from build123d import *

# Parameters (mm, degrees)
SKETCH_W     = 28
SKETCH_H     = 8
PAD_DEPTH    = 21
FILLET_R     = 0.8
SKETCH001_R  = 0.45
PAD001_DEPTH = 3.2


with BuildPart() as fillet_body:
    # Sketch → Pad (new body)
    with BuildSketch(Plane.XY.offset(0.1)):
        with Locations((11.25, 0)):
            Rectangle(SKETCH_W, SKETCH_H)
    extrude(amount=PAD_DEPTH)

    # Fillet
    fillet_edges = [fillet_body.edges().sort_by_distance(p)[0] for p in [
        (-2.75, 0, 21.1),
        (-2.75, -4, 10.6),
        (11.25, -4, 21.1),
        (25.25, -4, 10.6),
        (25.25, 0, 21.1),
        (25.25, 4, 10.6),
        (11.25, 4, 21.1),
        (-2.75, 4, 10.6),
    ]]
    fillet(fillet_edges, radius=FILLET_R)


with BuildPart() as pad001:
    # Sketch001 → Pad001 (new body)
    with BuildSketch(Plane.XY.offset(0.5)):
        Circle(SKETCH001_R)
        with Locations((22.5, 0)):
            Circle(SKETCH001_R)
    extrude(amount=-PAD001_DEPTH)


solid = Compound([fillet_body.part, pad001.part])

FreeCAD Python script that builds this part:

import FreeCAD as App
import Part
import Sketcher


def edges_at(feature, points):
    """Names of the edges that pass closest to the given points."""
    edges = feature.Shape.Edges
    near = lambda p: min(range(len(edges)), key=lambda i: edges[i].distToShape(Part.Vertex(*p))[0])
    return sorted({f"Edge{near(p) + 1}" for p in points})


def add_polygon(sketch, points):
    """Adds a closed chain of lines whose ends are joined by coincident constraints."""
    first, n = sketch.GeometryCount, len(points)
    for a, b in zip(points, points[1:] + points[:1]):
        sketch.addGeometry(Part.LineSegment(App.Vector(*a, 0), App.Vector(*b, 0)), False)
    for i in range(n):
        sketch.addConstraint(Sketcher.Constraint("Coincident", first + i, 2, first + (i + 1) % n, 1))

doc = App.newDocument("Part")
body = doc.addObject("PartDesign::Body", "Body")

# Sketch on XY plane
sketch1 = doc.addObject("Sketcher::SketchObject", "Sketch")
body.addObject(sketch1)
sketch1.AttachmentSupport = (doc.XY_Plane, [""])
sketch1.MapMode = "FlatFace"
sketch1.AttachmentOffset = App.Placement(App.Vector(0, 0, 0.1), App.Rotation())
add_polygon(sketch1, [(-2.75, 4), (-2.75, -4), (25.25, -4), (25.25, 4)])  # lines 0-3
sketch1.addConstraint(Sketcher.Constraint("Vertical", 0))
sketch1.addConstraint(Sketcher.Constraint("Horizontal", 1))
sketch1.addConstraint(Sketcher.Constraint("Vertical", 2))
sketch1.addConstraint(Sketcher.Constraint("Horizontal", 3))
sketch1.addConstraint(Sketcher.Constraint("DistanceX", 1, 1, 1, 2, 28.0))
sketch1.addConstraint(Sketcher.Constraint("DistanceY", 0, 2, 0, 1, 8.0))
sketch1.addConstraint(Sketcher.Constraint("DistanceY", 0, 2, -1, 1, 4.0))
sketch1.addConstraint(Sketcher.Constraint("DistanceX", 0, 2, -1, 1, 2.75))
pad1 = doc.addObject("PartDesign::Pad", "Pad")
body.addObject(pad1)
pad1.Profile = sketch1
pad1.Length = 21
doc.recompute()

fillet = doc.addObject("PartDesign::Fillet", "Fillet")
body.addObject(fillet)
fillet.Base = (pad1, edges_at(pad1, [
    (-2.75, 0, 21.1),
    (-2.75, -4, 10.6),
    (11.25, -4, 21.1),
    (25.25, -4, 10.6),
    (25.25, 0, 21.1),
    (25.25, 4, 10.6),
    (11.25, 4, 21.1),
    (-2.75, 4, 10.6),
]))
fillet.Radius = 0.8
body2 = doc.addObject("PartDesign::Body", "Body001")
body2.AllowCompound = True

# Sketch on XY plane
sketch2 = doc.addObject("Sketcher::SketchObject", "Sketch001")
body2.addObject(sketch2)
sketch2.AttachmentSupport = (doc.getObject("XY_Plane001"), [""])
sketch2.MapMode = "FlatFace"
sketch2.AttachmentOffset = App.Placement(App.Vector(0, 0, 0.5), App.Rotation())
sketch2.addGeometry(Part.Circle(App.Vector(0, 0, 0), App.Vector(0, 0, 1), 0.45), False)
sketch2.addGeometry(Part.Circle(App.Vector(22.5, 0, 0), App.Vector(0, 0, 1), 0.45), False)
sketch2.addConstraint(Sketcher.Constraint("Coincident", 0, 3, -1, 1))
sketch2.addConstraint(Sketcher.Constraint("Equal", 0, 1))
sketch2.addConstraint(Sketcher.Constraint("PointOnObject", 1, 3, -1))
sketch2.addConstraint(Sketcher.Constraint("Diameter", 0, 0.9))
sketch2.addConstraint(Sketcher.Constraint("DistanceX", -1, 1, 1, 3, 22.5))
pad2 = doc.addObject("PartDesign::Pad", "Pad001")
body2.addObject(pad2)
pad2.Profile = sketch2
pad2.Length = 3.2
pad2.Reversed = True

doc.recompute()
